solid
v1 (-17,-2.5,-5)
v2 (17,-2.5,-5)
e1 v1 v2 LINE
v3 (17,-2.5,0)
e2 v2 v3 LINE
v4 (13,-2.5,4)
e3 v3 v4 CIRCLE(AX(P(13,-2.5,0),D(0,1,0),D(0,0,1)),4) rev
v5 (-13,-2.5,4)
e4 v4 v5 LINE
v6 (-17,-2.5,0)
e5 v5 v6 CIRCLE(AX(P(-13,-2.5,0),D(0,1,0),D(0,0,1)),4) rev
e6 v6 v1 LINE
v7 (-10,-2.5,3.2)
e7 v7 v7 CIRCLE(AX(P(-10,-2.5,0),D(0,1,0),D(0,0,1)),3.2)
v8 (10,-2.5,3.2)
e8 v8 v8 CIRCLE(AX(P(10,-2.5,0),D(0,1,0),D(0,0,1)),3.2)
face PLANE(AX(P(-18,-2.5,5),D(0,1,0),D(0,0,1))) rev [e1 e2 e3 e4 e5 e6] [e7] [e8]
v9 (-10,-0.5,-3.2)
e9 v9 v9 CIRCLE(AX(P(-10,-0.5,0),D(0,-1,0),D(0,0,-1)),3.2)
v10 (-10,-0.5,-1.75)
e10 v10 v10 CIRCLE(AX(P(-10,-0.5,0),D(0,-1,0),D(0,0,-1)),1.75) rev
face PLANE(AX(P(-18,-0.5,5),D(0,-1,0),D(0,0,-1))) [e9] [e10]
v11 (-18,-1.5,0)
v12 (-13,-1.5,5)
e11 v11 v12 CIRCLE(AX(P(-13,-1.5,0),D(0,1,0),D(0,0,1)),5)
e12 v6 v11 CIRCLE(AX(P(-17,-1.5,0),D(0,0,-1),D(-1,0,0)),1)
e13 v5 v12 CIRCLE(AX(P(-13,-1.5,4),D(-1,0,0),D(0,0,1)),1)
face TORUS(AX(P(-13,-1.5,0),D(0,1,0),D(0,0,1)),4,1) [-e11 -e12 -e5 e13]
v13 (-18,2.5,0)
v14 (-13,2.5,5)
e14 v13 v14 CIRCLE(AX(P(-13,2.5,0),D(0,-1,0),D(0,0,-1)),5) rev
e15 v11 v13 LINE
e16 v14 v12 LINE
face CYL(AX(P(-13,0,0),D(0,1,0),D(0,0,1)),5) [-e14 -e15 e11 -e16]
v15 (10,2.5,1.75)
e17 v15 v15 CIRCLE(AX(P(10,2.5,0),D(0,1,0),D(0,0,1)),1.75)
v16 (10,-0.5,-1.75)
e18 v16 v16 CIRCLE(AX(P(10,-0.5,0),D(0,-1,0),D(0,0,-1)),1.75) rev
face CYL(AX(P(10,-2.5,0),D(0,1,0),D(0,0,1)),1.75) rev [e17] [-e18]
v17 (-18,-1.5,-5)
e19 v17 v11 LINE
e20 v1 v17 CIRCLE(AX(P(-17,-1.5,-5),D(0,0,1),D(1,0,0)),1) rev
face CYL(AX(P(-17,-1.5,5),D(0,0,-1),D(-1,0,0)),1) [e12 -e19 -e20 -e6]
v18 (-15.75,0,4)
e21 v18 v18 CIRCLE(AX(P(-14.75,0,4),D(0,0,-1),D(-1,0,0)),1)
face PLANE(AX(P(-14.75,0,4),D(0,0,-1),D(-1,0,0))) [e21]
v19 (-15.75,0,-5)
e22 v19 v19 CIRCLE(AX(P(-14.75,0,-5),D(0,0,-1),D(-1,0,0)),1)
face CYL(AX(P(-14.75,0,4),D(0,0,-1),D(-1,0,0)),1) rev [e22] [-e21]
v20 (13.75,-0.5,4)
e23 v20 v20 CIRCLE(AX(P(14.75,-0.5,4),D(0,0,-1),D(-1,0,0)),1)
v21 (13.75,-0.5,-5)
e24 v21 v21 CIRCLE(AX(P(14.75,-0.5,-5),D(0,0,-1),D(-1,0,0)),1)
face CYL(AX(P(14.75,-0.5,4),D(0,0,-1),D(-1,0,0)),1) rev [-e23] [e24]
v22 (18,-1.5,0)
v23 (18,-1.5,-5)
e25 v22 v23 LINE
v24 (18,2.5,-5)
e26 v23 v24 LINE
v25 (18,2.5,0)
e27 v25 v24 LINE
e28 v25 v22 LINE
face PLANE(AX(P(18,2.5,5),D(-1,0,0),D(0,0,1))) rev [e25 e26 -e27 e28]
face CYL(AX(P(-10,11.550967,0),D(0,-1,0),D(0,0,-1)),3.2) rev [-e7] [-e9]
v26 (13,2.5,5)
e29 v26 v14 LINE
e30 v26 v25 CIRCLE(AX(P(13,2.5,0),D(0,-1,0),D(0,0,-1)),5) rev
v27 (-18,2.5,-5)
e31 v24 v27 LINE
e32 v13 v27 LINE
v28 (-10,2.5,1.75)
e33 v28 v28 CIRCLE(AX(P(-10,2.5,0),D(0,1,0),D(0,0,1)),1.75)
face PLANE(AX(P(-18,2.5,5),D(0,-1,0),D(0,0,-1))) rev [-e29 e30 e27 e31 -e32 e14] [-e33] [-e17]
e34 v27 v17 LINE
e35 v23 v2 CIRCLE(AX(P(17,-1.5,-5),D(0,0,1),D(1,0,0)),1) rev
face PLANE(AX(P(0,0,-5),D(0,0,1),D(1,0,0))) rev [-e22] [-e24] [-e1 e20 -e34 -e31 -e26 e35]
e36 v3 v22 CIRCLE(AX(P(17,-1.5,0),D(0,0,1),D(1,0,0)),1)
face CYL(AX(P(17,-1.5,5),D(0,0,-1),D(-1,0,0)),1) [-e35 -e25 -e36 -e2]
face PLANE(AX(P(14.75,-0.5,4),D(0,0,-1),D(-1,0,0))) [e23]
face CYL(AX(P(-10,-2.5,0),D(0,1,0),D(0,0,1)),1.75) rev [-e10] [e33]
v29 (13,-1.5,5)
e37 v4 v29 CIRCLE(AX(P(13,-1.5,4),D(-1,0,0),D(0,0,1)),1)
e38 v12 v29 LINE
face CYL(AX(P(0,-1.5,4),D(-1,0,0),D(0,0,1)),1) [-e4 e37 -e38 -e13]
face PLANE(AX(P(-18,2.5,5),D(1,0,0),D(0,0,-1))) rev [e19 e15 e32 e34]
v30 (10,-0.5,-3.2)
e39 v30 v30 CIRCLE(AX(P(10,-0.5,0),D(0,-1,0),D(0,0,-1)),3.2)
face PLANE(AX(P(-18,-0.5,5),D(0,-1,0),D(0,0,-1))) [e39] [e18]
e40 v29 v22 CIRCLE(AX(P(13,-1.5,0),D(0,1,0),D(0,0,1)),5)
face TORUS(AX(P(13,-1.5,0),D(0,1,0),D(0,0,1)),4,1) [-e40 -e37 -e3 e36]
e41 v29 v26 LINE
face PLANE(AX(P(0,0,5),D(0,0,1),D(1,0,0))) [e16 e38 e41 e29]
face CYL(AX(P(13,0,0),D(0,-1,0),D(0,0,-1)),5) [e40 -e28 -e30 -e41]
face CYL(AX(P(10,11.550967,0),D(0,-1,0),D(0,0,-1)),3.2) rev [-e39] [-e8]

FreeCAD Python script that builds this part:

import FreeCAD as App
import Part
import Sketcher

V = App.Vector


def edges_at(feature, points):
    """Names of the edges that pass closest to the given points."""
    edges = feature.Shape.Edges
    near = lambda p: min(range(len(edges)), key=lambda i: edges[i].distToShape(Part.Vertex(*p))[0])
    return sorted({f"Edge{near(p) + 1}" for p in points})

doc = App.newDocument("Part")
body = doc.addObject("PartDesign::Body", "Body")

sketch1 = doc.addObject("Sketcher::SketchObject", "Sketch")
body.addObject(sketch1)
sketch1.AttachmentSupport = (doc.XY_Plane, [""])
sketch1.MapMode = "FlatFace"
sketch1.addGeometry([
    Part.LineSegment(V(-18, 2, 0), V(-18, -2, 0)),
    Part.LineSegment(V(-18, -2, 0), V(18, -2, 0)),
    Part.LineSegment(V(18, -2, 0), V(18, 2, 0)),
    Part.LineSegment(V(18, 2, 0), V(-18, 2, 0)),
], False)
sketch1.addConstraint([
    Sketcher.Constraint("Coincident", 0, 2, 1, 1),
    Sketcher.Constraint("Coincident", 1, 2, 2, 1),
    Sketcher.Constraint("Coincident", 2, 2, 3, 1),
    Sketcher.Constraint("Coincident", 3, 2, 0, 1),
    Sketcher.Constraint("Vertical", 0),
    Sketcher.Constraint("Horizontal", 1),
    Sketcher.Constraint("Vertical", 2),
    Sketcher.Constraint("Horizontal", 3),
    Sketcher.Constraint("Symmetric", 0, 2, 2, 2, -1, 1),
    Sketcher.Constraint("DistanceX", 1, 1, 1, 2, 36.0),
    Sketcher.Constraint("DistanceY", 0, 2, 0, 1, 5.0),
])
pad1 = doc.addObject("PartDesign::Pad", "Pad")
body.addObject(pad1)
pad1.Profile = sketch1
pad1.Length = 10
pad1.Midplane = True

sketch2 = doc.addObject("Sketcher::SketchObject", "Sketch001")
body.addObject(sketch2)
sketch2.AttachmentSupport = (doc.XY_Plane, [""])
sketch2.MapMode = "FlatFace"
sketch2.AttachmentOffset = App.Placement(V(0, 0, -5), App.Rotation())
sketch2.addGeometry([
    Part.Circle(V(14.8, -0.5, 0), V(0, 0, 1), 1),
    Part.Circle(V(-14.8, 0, 0), V(0, 0, 1), 1),
], False)
sketch2.addConstraint([
    Sketcher.Constraint("Equal", 0, 1),
    Sketcher.Constraint("PointOnObject", 1, 3, -1),
    Sketcher.Constraint("Diameter", 0, 2.0),
    Sketcher.Constraint("DistanceY", 0, 3, -1, 1, 0.5),
    Sketcher.Constraint("DistanceX", 1, 3, 0, 3, 29.5),
    Sketcher.Constraint("DistanceX", -1, 1, 0, 3, 14.75),
])
pocket1 = doc.addObject("PartDesign::Pocket", "Pocket")
body.addObject(pocket1)
pocket1.Profile = sketch2
pocket1.Length = 9
pocket1.Reversed = True

sketch3 = doc.addObject("Sketcher::SketchObject", "Sketch002")
body.addObject(sketch3)
sketch3.AttachmentSupport = (doc.XZ_Plane, [""])
sketch3.MapMode = "FlatFace"
sketch3.AttachmentOffset = App.Placement(V(0, 0, -2.5), App.Rotation())
sketch3.addGeometry([
    Part.Circle(V(-10, 0, 0), V(0, 0, 1), 1.8),
    Part.Circle(V(10, 0, 0), V(0, 0, 1), 1.8),
], False)
sketch3.addConstraint([
    Sketcher.Constraint("Equal", 0, 1),
    Sketcher.Constraint("Symmetric", 0, 3, 1, 3, -1, 1),
    Sketcher.Constraint("PointOnObject", 0, 3, -1),
    Sketcher.Constraint("Diameter", 0, 3.5),
    Sketcher.Constraint("DistanceX", 0, 3, -1, 1, 10.0),
])
pocket2 = doc.addObject("PartDesign::Pocket", "Pocket001")
body.addObject(pocket2)
pocket2.Profile = sketch3
pocket2.Type = "ThroughAll"
pocket2.Reversed = True

sketch4 = doc.addObject("Sketcher::SketchObject", "Sketch003")
body.addObject(sketch4)
sketch4.AttachmentSupport = (doc.XZ_Plane, [""])
sketch4.MapMode = "FlatFace"
sketch4.AttachmentOffset = App.Placement(V(0, 0, 2.5), App.Rotation())
sketch4.addGeometry([
    Part.Circle(V(-10, 0, 0), V(0, 0, 1), 3.2),
    Part.Circle(V(10, 0, 0), V(0, 0, 1), 3.2),
], False)
sketch4.addConstraint([
    Sketcher.Constraint("Equal", 0, 1),
    Sketcher.Constraint("Symmetric", 0, 3, 1, 3, -1, 1),
    Sketcher.Constraint("PointOnObject", 0, 3, -1),
    Sketcher.Constraint("Diameter", 0, 6.4),
    Sketcher.Constraint("DistanceX", 0, 3, -1, 1, 10.0),
])
pocket3 = doc.addObject("PartDesign::Pocket", "Pocket002")
body.addObject(pocket3)
pocket3.Profile = sketch4
pocket3.Length = 2
doc.recompute()

fillet = doc.addObject("PartDesign::Fillet", "Fillet")
body.addObject(fillet)
fillet.Base = (pocket3, edges_at(pocket3, [(18, 0, 5), (-18, 0, 5)]))
fillet.Radius = 5
doc.recompute()

fillet2 = doc.addObject("PartDesign::Fillet", "Fillet001")
body.addObject(fillet2)
fillet2.Base = (fillet, edges_at(fillet, [
    (0, -2.5, 5),
    (18, -2.5, -2.5),
    (-18, -2.5, -2.5),
    (16.536, -2.5, 3.536),
    (-16.536, -2.5, 3.536),
]))
fillet2.Radius = 1

doc.recompute()
